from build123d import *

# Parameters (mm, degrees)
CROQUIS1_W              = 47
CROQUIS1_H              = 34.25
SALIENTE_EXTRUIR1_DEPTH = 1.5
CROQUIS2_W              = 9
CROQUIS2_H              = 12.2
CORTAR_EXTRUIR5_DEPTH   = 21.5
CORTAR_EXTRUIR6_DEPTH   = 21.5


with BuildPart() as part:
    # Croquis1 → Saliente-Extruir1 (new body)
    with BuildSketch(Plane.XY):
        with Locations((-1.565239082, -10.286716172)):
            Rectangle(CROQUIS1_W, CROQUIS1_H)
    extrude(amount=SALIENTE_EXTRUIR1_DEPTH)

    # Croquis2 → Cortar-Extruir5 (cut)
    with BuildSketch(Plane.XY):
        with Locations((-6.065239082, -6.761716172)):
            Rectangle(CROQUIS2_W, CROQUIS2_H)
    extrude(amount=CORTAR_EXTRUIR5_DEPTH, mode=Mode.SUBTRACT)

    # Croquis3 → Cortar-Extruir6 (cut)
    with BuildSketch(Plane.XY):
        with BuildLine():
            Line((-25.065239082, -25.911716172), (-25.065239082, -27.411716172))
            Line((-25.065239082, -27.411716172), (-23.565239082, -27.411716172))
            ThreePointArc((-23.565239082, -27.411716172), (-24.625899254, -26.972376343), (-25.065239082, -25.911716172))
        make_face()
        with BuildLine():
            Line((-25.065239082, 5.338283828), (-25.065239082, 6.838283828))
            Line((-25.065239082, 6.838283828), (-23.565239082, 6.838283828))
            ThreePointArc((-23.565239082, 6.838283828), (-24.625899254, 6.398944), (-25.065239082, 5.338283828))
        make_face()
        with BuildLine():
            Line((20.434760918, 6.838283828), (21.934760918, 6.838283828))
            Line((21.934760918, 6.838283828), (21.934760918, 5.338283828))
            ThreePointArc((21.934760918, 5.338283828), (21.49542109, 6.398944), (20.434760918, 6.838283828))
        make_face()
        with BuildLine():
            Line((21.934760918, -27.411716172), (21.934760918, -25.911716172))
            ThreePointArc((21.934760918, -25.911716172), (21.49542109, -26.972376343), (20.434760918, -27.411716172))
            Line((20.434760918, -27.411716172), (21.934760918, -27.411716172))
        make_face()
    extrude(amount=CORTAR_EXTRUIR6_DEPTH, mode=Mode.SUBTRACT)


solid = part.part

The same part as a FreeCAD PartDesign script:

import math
import FreeCAD as App
import Part
import Sketcher

V = App.Vector


def add_polygon(sketch, points):
    """Adds a closed chain of lines whose ends are joined by coincident constraints."""
    first, n = sketch.GeometryCount, len(points)
    for a, b in zip(points, points[1:] + points[:1]):
        sketch.addGeometry(Part.LineSegment(App.Vector(*a, 0), App.Vector(*b, 0)), False)
    for i in range(n):
        sketch.addConstraint(Sketcher.Constraint("Coincident", first + i, 2, first + (i + 1) % n, 1))

doc = App.newDocument("Part")
body = doc.addObject("PartDesign::Body", "Body")

sketch1 = body.newObject("Sketcher::SketchObject", "Sketch")
sketch1.AttachmentSupport = (doc.getObject("XY_Plane"), [""])
sketch1.MapMode = "FlatFace"
add_polygon(sketch1, [(-25.065239, 6.838284), (-25.065239, -27.411716), (21.934761, -27.411716), (21.934761, 6.838284)])
sketch1.addConstraint([
    Sketcher.Constraint("Vertical", 0),
    Sketcher.Constraint("Horizontal", 1),
    Sketcher.Constraint("Vertical", 2),
    Sketcher.Constraint("Horizontal", 3),
    Sketcher.Constraint("DistanceX", 1, 1, 1, 2, 47.0),
    Sketcher.Constraint("DistanceY", 0, 2, 0, 1, 34.25),
    Sketcher.Constraint("DistanceX", 0, 2, -1, 1, 25.065239),
    Sketcher.Constraint("DistanceY", 0, 2, -1, 1, 27.411716),
])
pad1 = body.newObject("PartDesign::Pad", "Pad")
pad1.Profile = sketch1
pad1.Length = 1.5

sketch2 = body.newObject("Sketcher::SketchObject", "Sketch001")
sketch2.AttachmentSupport = (doc.getObject("XY_Plane"), [""])
sketch2.MapMode = "FlatFace"
add_polygon(sketch2, [(-10.565239, -0.661716), (-10.565239, -12.861716), (-1.565239, -12.861716), (-1.565239, -0.661716)])
sketch2.addConstraint([
    Sketcher.Constraint("Vertical", 0),
    Sketcher.Constraint("Horizontal", 1),
    Sketcher.Constraint("Vertical", 2),
    Sketcher.Constraint("Horizontal", 3),
    Sketcher.Constraint("DistanceX", 1, 1, 1, 2, 9.0),
    Sketcher.Constraint("DistanceY", 0, 2, 0, 1, 12.2),
    Sketcher.Constraint("DistanceX", 0, 2, -1, 1, 10.565239),
    Sketcher.Constraint("DistanceY", 0, 2, -1, 1, 12.861716),
])
pocket1 = body.newObject("PartDesign::Pocket", "Pocket")
pocket1.Profile = sketch2
pocket1.Length = 21.5
pocket1.Reversed = True

sketch3 = body.newObject("Sketcher::SketchObject", "Sketch002")
sketch3.AttachmentSupport = (doc.getObject("XY_Plane"), [""])
sketch3.MapMode = "FlatFace"
sketch3.addGeometry([
    Part.LineSegment(V(-25.065239, -25.911716, 0), V(-25.065239, -27.411716, 0)),
    Part.LineSegment(V(-25.065239, -27.411716, 0), V(-23.565239, -27.411716, 0)),
    Part.ArcOfCircle(Part.Circle(V(-23.565239, -25.911716, 0), V(0, 0, 1), 1.5), math.radians(-180), math.radians(-90)),
    Part.LineSegment(V(-25.065239, 6.838284, 0), V(-25.065239, 5.338284, 0)),
    Part.ArcOfCircle(Part.Circle(V(-23.565239, 5.338284, 0), V(0, 0, 1), 1.5), math.radians(90), math.radians(180)),
    Part.LineSegment(V(-23.565239, 6.838284, 0), V(-25.065239, 6.838284, 0)),
    Part.LineSegment(V(21.934761, 6.838284, 0), V(20.434761, 6.838284, 0)),
    Part.ArcOfCircle(Part.Circle(V(20.434761, 5.338284, 0), V(0, 0, 1), 1.5), math.radians(0), math.radians(90)),
    Part.LineSegment(V(21.934761, 5.338284, 0), V(21.934761, 6.838284, 0)),
    Part.LineSegment(V(21.934761, -27.411716, 0), V(21.934761, -25.911716, 0)),
    Part.ArcOfCircle(Part.Circle(V(20.434761, -25.911716, 0), V(0, 0, 1), 1.5), math.radians(-90), math.radians(0)),
    Part.LineSegment(V(20.434761, -27.411716, 0), V(21.934761, -27.411716, 0)),
], False)
sketch3.addConstraint([
    Sketcher.Constraint("Coincident", 0, 2, 1, 1),
    Sketcher.Constraint("Tangent", 1, 2, 2, 2),
    Sketcher.Constraint("Tangent", 2, 1, 0, 1),
    Sketcher.Constraint("Tangent", 3, 2, 4, 2),
    Sketcher.Constraint("Tangent", 4, 1, 5, 1),
    Sketcher.Constraint("Coincident", 5, 2, 3, 1),
    Sketcher.Constraint("Tangent", 6, 2, 7, 2),
    Sketcher.Constraint("Tangent", 7, 1, 8, 1),
    Sketcher.Constraint("Coincident", 8, 2, 6, 1),
    Sketcher.Constraint("Tangent", 9, 2, 10, 2),
    Sketcher.Constraint("Tangent", 10, 1, 11, 1),
    Sketcher.Constraint("Coincident", 11, 2, 9, 1),
    Sketcher.Constraint("Vertical", 0),
    Sketcher.Constraint("Horizontal", 1),
    Sketcher.Constraint("Vertical", 3),
    Sketcher.Constraint("Horizontal", 5),
    Sketcher.Constraint("Horizontal", 6),
    Sketcher.Constraint("Vertical", 8),
    Sketcher.Constraint("Vertical", 9),
    Sketcher.Constraint("Horizontal", 11),
    Sketcher.Constraint("Equal", 2, 4),
    Sketcher.Constraint("Equal", 4, 7),
    Sketcher.Constraint("Equal", 7, 10),
    Sketcher.Constraint("Horizontal", 4, 3, 7, 3),
    Sketcher.Constraint("Horizontal", 2, 3, 10, 3),
    Sketcher.Constraint("Vertical", 2, 3, 4, 3),
    Sketcher.Constraint("Vertical", 7, 3, 10, 3),
    Sketcher.Constraint("Radius", 2, 1.5),
    Sketcher.Constraint("DistanceX", 4, 3, 7, 3, 44.0),
    Sketcher.Constraint("DistanceY", 2, 3, 4, 3, 31.25),
    Sketcher.Constraint("DistanceX", 2, 3, -1, 1, 23.565239),
    Sketcher.Constraint("DistanceY", 2, 3, -1, 1, 25.911716),
])
pocket2 = body.newObject("PartDesign::Pocket", "Pocket001")
pocket2.Profile = sketch3
pocket2.Length = 21.5
pocket2.Reversed = True

doc.recompute()
